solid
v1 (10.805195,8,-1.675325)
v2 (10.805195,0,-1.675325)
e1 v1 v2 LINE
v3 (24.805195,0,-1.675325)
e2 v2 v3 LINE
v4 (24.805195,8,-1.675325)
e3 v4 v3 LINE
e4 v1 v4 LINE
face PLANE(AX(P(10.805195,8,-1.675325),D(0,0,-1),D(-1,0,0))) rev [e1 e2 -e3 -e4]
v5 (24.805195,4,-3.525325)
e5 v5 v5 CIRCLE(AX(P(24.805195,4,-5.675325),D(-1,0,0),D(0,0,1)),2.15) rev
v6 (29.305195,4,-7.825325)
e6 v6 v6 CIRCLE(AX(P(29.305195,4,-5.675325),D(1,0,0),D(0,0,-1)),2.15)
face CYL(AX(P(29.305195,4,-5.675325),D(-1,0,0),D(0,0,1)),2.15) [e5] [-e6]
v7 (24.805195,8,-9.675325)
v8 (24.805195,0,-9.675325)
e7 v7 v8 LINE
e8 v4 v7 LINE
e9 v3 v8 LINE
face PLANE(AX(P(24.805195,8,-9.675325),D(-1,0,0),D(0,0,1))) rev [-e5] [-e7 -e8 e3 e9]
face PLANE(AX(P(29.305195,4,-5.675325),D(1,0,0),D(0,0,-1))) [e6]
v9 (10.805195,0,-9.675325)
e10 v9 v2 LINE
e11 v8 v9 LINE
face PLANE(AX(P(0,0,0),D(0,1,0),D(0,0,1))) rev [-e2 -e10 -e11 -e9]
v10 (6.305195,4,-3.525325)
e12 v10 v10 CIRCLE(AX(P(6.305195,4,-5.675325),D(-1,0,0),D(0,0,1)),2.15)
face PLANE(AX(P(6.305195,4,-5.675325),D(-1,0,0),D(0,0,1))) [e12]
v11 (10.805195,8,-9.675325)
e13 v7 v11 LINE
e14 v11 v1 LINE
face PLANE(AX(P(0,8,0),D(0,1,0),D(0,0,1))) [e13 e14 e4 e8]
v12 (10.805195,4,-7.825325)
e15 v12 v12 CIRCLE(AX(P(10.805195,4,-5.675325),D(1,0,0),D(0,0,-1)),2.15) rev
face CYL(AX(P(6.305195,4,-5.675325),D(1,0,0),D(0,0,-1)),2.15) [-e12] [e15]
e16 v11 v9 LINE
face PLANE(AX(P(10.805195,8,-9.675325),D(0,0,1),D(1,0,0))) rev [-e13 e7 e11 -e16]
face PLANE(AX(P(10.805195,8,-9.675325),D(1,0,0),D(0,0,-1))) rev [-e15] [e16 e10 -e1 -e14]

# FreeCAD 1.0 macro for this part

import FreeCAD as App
import Part
import Sketcher
Q = App.Units.Quantity


def add_polygon(sketch, points):
    """Adds a closed chain of lines whose ends are joined by coincident constraints."""
    first, n = sketch.GeometryCount, len(points)
    for a, b in zip(points, points[1:] + points[:1]):
        sketch.addGeometry(Part.LineSegment(App.Vector(*a, 0), App.Vector(*b, 0)), False)
    for i in range(n):
        sketch.addConstraint(Sketcher.Constraint("Coincident", first + i, 2, first + (i + 1) % n, 1))

doc = App.newDocument("Part")
body = doc.addObject("PartDesign::Body", "Body")

# Sketch on XZ plane
sketch1 = body.newObject("Sketcher::SketchObject", "Sketch")
sketch1.AttachmentSupport = (doc.getObject("XZ_Plane"), [""])
sketch1.MapMode = "FlatFace"
add_polygon(sketch1, [(10.805195, -9.675325), (10.805195, -1.675325), (24.805195, -1.675325), (24.805195, -9.675325)])  # lines 0-3
sketch1.addConstraint([
    Sketcher.Constraint("Vertical", 0),
    Sketcher.Constraint("Horizontal", 1),
    Sketcher.Constraint("Vertical", 2),
    Sketcher.Constraint("Horizontal", 3),
    Sketcher.Constraint("DistanceX", 1, 1, 1, 2, Q("14 mm")),
    Sketcher.Constraint("DistanceY", 0, 1, 0, 2, Q("8 mm")),
    Sketcher.Constraint("DistanceX", -1, 1, 0, 2, Q("10.805195 mm")),
    Sketcher.Constraint("DistanceY", 0, 2, -1, 1, Q("1.675325 mm")),
])
pad1 = body.newObject("PartDesign::Pad", "Pad")
pad1.Profile = sketch1
pad1.Length = 8
pad1.Reversed = True

# Sketch on YZ plane
sketch2 = body.newObject("Sketcher::SketchObject", "Sketch001")
sketch2.AttachmentSupport = (doc.getObject("YZ_Plane"), [""])
sketch2.MapMode = "FlatFace"
sketch2.AttachmentOffset = App.Placement(App.Vector(0, 0, 24.805195), App.Rotation())
sketch2.addGeometry(Part.Circle(App.Vector(4, -5.675325, 0), App.Vector(0, 0, 1), 2.15), False)
sketch2.addConstraint([
    Sketcher.Constraint("Diameter", 0, Q("4.3 mm")),
    Sketcher.Constraint("DistanceX", -1, 1, 0, 3, Q("4 mm")),
    Sketcher.Constraint("DistanceY", 0, 3, -1, 1, Q("5.675325 mm")),
])
pad2 = body.newObject("PartDesign::Pad", "Pad001")
pad2.Profile = sketch2
pad2.Length = 4.5

# Sketch on YZ plane
sketch3 = body.newObject("Sketcher::SketchObject", "Sketch002")
sketch3.AttachmentSupport = (doc.getObject("YZ_Plane"), [""])
sketch3.MapMode = "FlatFace"
sketch3.AttachmentOffset = App.Placement(App.Vector(0, 0, 6.305195), App.Rotation())
sketch3.addGeometry(Part.Circle(App.Vector(4, -5.675325, 0), App.Vector(0, 0, 1), 2.15), False)
sketch3.addConstraint([
    Sketcher.Constraint("Diameter", 0, Q("4.3 mm")),
    Sketcher.Constraint("DistanceX", -1, 1, 0, 3, Q("4 mm")),
    Sketcher.Constraint("DistanceY", 0, 3, -1, 1, Q("5.675325 mm")),
])
pad3 = body.newObject("PartDesign::Pad", "Pad002")
pad3.Profile = sketch3
pad3.Length = 4.5

doc.recompute()
